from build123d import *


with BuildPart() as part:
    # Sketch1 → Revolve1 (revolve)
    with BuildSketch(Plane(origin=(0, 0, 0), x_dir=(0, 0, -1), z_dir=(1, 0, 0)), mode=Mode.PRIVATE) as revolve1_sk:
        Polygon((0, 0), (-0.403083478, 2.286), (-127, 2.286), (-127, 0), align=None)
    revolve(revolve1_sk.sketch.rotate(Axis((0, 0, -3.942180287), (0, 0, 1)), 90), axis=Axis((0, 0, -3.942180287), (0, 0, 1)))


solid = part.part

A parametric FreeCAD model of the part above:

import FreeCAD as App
import Part
import Sketcher
from FreeCAD import Vector
Q = App.Units.Quantity

doc = App.newDocument("Part")
params = doc.addObject("Spreadsheet::Sheet", "Params")
for row, (alias, value) in enumerate([
    ("sketch1_height", "5 in"),
    ("sketch1_width", "0.09 in"),
    ("revolution_angle", "360 deg"),
], start=1):
    params.set(f"A{row}", alias)
    params.set(f"B{row}", "=" + value)
    params.setAlias(f"B{row}", alias)

body = doc.addObject("PartDesign::Body", "Body")

# Sketch on YZ plane
sketch1 = doc.addObject("Sketcher::SketchObject", "Sketch")
body.addObject(sketch1)
sketch1.AttachmentSupport = (doc.YZ_Plane, [""])
sketch1.MapMode = "FlatFace"
sketch1.addGeometry(Part.LineSegment(Vector(0, 0, 0), Vector(2.3, 0.4, 0)), False)
sketch1.addGeometry(Part.LineSegment(Vector(2.3, 0.4, 0), Vector(2.3, 127, 0)), False)
sketch1.addGeometry(Part.LineSegment(Vector(2.3, 127, 0), Vector(0, 127, 0)), False)
sketch1.addGeometry(Part.LineSegment(Vector(0, 127, 0), Vector(0, 0, 0)), False)
sketch1.addConstraint(Sketcher.Constraint("Coincident", 0, 2, 1, 1))
sketch1.addConstraint(Sketcher.Constraint("Coincident", 1, 2, 2, 1))
sketch1.addConstraint(Sketcher.Constraint("Coincident", 2, 2, 3, 1))
sketch1.addConstraint(Sketcher.Constraint("Coincident", 3, 2, 0, 1))
sketch1.addConstraint(Sketcher.Constraint("Vertical", 1))
sketch1.addConstraint(Sketcher.Constraint("Horizontal", 2))
sketch1.addConstraint(Sketcher.Constraint("Vertical", 3))
sketch1.addConstraint(Sketcher.Constraint("Coincident", 3, 2, -1, 1))
sketch1.addConstraint(Sketcher.Constraint("DistanceY", 3, 2, 3, 1, Q("5 in")))
sketch1.addConstraint(Sketcher.Constraint("Angle", 0, Q("10 deg")))
sketch1.addConstraint(Sketcher.Constraint("DistanceX", 2, 2, 2, 1, Q("0.09 in")))
sketch1.setExpression("Constraints[8]", "Params.sketch1_height")
sketch1.setExpression("Constraints[10]", "Params.sketch1_width")
revolution = doc.addObject("PartDesign::Revolution", "Revolution")
body.addObject(revolution)
revolution.Profile = sketch1
revolution.ReferenceAxis = (sketch1, ["V_Axis"])
revolution.setExpression("Angle", "Params.revolution_angle")

doc.recompute()
